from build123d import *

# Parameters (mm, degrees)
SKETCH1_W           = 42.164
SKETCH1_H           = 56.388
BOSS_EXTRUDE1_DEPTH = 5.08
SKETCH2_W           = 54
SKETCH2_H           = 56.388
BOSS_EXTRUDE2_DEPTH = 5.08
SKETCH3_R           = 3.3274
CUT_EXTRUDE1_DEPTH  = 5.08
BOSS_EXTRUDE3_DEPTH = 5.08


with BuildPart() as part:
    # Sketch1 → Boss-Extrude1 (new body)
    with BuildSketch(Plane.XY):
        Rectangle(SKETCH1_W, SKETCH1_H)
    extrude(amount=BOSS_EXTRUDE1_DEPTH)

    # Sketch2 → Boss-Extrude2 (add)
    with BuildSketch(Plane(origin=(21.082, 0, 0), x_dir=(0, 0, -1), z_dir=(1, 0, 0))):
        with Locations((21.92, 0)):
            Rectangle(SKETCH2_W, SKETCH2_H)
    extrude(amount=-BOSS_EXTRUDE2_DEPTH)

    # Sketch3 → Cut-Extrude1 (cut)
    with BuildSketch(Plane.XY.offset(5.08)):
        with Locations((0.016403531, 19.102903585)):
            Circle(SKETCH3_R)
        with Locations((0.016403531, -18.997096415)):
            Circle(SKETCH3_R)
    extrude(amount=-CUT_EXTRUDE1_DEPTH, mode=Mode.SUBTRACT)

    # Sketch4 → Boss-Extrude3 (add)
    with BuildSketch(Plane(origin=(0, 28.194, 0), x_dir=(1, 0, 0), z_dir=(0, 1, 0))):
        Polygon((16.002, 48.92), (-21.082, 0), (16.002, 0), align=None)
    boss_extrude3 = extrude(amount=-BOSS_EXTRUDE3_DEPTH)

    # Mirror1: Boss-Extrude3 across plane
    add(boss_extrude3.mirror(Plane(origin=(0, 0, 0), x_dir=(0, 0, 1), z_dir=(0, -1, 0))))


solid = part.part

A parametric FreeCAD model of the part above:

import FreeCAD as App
import Part
import Sketcher

V = App.Vector
Q = App.Units.Quantity


def add_polygon(sketch, points):
    """Adds a closed chain of lines whose ends are joined by coincident constraints."""
    first, n = sketch.GeometryCount, len(points)
    for a, b in zip(points, points[1:] + points[:1]):
        sketch.addGeometry(Part.LineSegment(App.Vector(*a, 0), App.Vector(*b, 0)), False)
    for i in range(n):
        sketch.addConstraint(Sketcher.Constraint("Coincident", first + i, 2, first + (i + 1) % n, 1))

doc = App.newDocument("Part")
params = doc.addObject("Spreadsheet::Sheet", "Params")
for row, (alias, value) in enumerate([
    ("sketch1_width", "1.66 in"),
    ("sketch1_height", "2.22 in"),
    ("pad1_length", "0.2 in"),
    ("sketch2_width", "2.22 in"),
    ("pad2_length", "0.2 in"),
    ("sketch3_diameter", "0.262 in"),
    ("pocket1_length", "0.2 in"),
    ("sketch4_width", "1.46 in"),
    ("pad3_length", "0.2 in"),
], start=1):
    params.set(f"A{row}", alias)
    params.set(f"B{row}", "=" + value)
    params.setAlias(f"B{row}", alias)

body = doc.addObject("PartDesign::Body", "Body")

# Sketch on XY plane
sketch1 = body.newObject("Sketcher::SketchObject", "Sketch")
sketch1.AttachmentSupport = (doc.getObject("XY_Plane"), [""])
sketch1.MapMode = "FlatFace"
add_polygon(sketch1, [(-21.082, 28.194), (-21.082, -28.194), (21.082, -28.194), (21.082, 28.194)])  # lines 0-3
sketch1.addConstraint(Sketcher.Constraint("Vertical", 0))
sketch1.addConstraint(Sketcher.Constraint("Horizontal", 1))
sketch1.addConstraint(Sketcher.Constraint("Vertical", 2))
sketch1.addConstraint(Sketcher.Constraint("Horizontal", 3))
sketch1.addConstraint(Sketcher.Constraint("Symmetric", 0, 2, 2, 2, -1, 1))
sketch1.addConstraint(Sketcher.Constraint("DistanceX", 1, 1, 1, 2, Q("1.66 in")))
sketch1.addConstraint(Sketcher.Constraint("DistanceY", 0, 2, 0, 1, Q("2.22 in")))
sketch1.setExpression("Constraints[9]", "Params.sketch1_width")
sketch1.setExpression("Constraints[10]", "Params.sketch1_height")
pad1 = body.newObject("PartDesign::Pad", "Pad")
pad1.Profile = sketch1
pad1.setExpression("Length", "Params.pad1_length")

# Sketch on YZ plane
sketch2 = body.newObject("Sketcher::SketchObject", "Sketch001")
sketch2.AttachmentSupport = (doc.getObject("YZ_Plane"), [""])
sketch2.MapMode = "FlatFace"
sketch2.AttachmentOffset = App.Placement(V(0, 0, 0.83 * 25.4), App.Rotation())
add_polygon(sketch2, [(28.194, 5.08), (-28.194, 5.08), (-28.194, -48.92), (28.194, -48.92)])  # lines 0-3
sketch2.addConstraint(Sketcher.Constraint("Horizontal", 0))
sketch2.addConstraint(Sketcher.Constraint("Vertical", 1))
sketch2.addConstraint(Sketcher.Constraint("Horizontal", 2))
sketch2.addConstraint(Sketcher.Constraint("Vertical", 3))
sketch2.addConstraint(Sketcher.Constraint("DistanceX", 0, 2, 0, 1, Q("2.22 in")))
sketch2.addConstraint(Sketcher.Constraint("DistanceY", -1, 1, 0, 2, Q("0.2 in")))
sketch2.addConstraint(Sketcher.Constraint("DistanceX", 0, 2, -1, 1, Q("1.11 in")))
sketch2.addConstraint(Sketcher.Constraint("DistanceY", 1, 2, 1, 1, 54.0))
sketch2.setExpression("Constraints[8]", "Params.sketch2_width")
pad2 = body.newObject("PartDesign::Pad", "Pad001")
pad2.Profile = sketch2
pad2.setExpression("Length", "Params.pad2_length")
pad2.Reversed = True

# Sketch on XY plane
sketch3 = body.newObject("Sketcher::SketchObject", "Sketch002")
sketch3.AttachmentSupport = (doc.getObject("XY_Plane"), [""])
sketch3.MapMode = "FlatFace"
sketch3.AttachmentOffset = App.Placement(V(0, 0, 0.2 * 25.4), App.Rotation())
sketch3.addGeometry(Part.Circle(V(0.016404, 19.102904, 0), V(0, 0, 1), 3.3274), False)
sketch3.addGeometry(Part.Circle(V(0.016404, -18.997096, 0), V(0, 0, 1), 3.3274), False)
sketch3.addConstraint(Sketcher.Constraint("Equal", 0, 1))
sketch3.addConstraint(Sketcher.Constraint("Vertical", 0, 3, 1, 3))
sketch3.addConstraint(Sketcher.Constraint("Diameter", 0, Q("0.262 in")))
sketch3.addConstraint(Sketcher.Constraint("DistanceY", 1, 3, 0, 3, Q("1.5 in")))
sketch3.addConstraint(Sketcher.Constraint("DistanceX", -1, 1, 0, 3, 0.016404))
sketch3.addConstraint(Sketcher.Constraint("DistanceY", -1, 1, 0, 3, 19.102904))
sketch3.setExpression("Constraints[2]", "Params.sketch3_diameter")
pocket1 = body.newObject("PartDesign::Pocket", "Pocket")
pocket1.Profile = sketch3
pocket1.setExpression("Length", "Params.pocket1_length")

# Sketch on XZ plane
sketch4 = body.newObject("Sketcher::SketchObject", "Sketch003")
sketch4.AttachmentSupport = (doc.getObject("XZ_Plane"), [""])
sketch4.MapMode = "FlatFace"
sketch4.AttachmentOffset = App.Placement(V(0, 0, -1.11 * 25.4), App.Rotation())
add_polygon(sketch4, [(16.002, -48.92), (-21.082, 0), (16.002, 0)])  # lines 0-2
sketch4.addConstraint(Sketcher.Constraint("Horizontal", 1))
sketch4.addConstraint(Sketcher.Constraint("Vertical", 2))
sketch4.addConstraint(Sketcher.Constraint("PointOnObject", 0, 2, -1))
sketch4.addConstraint(Sketcher.Constraint("DistanceX", 1, 1, 1, 2, Q("1.46 in")))
sketch4.addConstraint(Sketcher.Constraint("DistanceX", 0, 2, -1, 1, Q("0.83 in")))
sketch4.addConstraint(Sketcher.Constraint("DistanceY", 2, 2, 2, 1, 48.92))
sketch4.setExpression("Constraints[6]", "Params.sketch4_width")
pad3 = body.newObject("PartDesign::Pad", "Pad002")
pad3.Profile = sketch4
pad3.setExpression("Length", "Params.pad3_length")
doc.recompute()

mirrored = body.newObject("PartDesign::Mirrored", "Mirrored")
mirrored.Originals = [pad3]
mirrored.MirrorPlane = (doc.getObject("XZ_Plane"), [""])
body.Tip = mirrored

doc.recompute()
